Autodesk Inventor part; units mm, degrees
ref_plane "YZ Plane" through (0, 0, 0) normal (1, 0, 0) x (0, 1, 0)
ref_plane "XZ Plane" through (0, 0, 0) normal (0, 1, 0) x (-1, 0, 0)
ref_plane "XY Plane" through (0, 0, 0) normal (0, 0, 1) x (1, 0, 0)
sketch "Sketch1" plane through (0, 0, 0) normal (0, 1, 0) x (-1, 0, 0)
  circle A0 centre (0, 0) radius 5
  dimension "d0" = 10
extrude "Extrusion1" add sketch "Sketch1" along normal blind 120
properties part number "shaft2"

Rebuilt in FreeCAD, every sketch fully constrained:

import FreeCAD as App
import Part
import Sketcher
from FreeCAD import Vector

doc = App.newDocument("Part")
body = doc.addObject("PartDesign::Body", "Body")

sketch1 = doc.addObject("Sketcher::SketchObject", "Sketch")
body.addObject(sketch1)
sketch1.AttachmentSupport = (doc.XZ_Plane, [""])
sketch1.MapMode = "FlatFace"
sketch1.addGeometry(Part.Circle(Vector(0, 0, 0), Vector(0, 0, 1), 5), False)
sketch1.addConstraint([
    Sketcher.Constraint("Coincident", 0, 3, -1, 1),
    Sketcher.Constraint("Diameter", 0, 10.0),
])
pad1 = doc.addObject("PartDesign::Pad", "Pad")
body.addObject(pad1)
pad1.Profile = sketch1
pad1.Length = 120
pad1.Reversed = True

doc.recompute()
